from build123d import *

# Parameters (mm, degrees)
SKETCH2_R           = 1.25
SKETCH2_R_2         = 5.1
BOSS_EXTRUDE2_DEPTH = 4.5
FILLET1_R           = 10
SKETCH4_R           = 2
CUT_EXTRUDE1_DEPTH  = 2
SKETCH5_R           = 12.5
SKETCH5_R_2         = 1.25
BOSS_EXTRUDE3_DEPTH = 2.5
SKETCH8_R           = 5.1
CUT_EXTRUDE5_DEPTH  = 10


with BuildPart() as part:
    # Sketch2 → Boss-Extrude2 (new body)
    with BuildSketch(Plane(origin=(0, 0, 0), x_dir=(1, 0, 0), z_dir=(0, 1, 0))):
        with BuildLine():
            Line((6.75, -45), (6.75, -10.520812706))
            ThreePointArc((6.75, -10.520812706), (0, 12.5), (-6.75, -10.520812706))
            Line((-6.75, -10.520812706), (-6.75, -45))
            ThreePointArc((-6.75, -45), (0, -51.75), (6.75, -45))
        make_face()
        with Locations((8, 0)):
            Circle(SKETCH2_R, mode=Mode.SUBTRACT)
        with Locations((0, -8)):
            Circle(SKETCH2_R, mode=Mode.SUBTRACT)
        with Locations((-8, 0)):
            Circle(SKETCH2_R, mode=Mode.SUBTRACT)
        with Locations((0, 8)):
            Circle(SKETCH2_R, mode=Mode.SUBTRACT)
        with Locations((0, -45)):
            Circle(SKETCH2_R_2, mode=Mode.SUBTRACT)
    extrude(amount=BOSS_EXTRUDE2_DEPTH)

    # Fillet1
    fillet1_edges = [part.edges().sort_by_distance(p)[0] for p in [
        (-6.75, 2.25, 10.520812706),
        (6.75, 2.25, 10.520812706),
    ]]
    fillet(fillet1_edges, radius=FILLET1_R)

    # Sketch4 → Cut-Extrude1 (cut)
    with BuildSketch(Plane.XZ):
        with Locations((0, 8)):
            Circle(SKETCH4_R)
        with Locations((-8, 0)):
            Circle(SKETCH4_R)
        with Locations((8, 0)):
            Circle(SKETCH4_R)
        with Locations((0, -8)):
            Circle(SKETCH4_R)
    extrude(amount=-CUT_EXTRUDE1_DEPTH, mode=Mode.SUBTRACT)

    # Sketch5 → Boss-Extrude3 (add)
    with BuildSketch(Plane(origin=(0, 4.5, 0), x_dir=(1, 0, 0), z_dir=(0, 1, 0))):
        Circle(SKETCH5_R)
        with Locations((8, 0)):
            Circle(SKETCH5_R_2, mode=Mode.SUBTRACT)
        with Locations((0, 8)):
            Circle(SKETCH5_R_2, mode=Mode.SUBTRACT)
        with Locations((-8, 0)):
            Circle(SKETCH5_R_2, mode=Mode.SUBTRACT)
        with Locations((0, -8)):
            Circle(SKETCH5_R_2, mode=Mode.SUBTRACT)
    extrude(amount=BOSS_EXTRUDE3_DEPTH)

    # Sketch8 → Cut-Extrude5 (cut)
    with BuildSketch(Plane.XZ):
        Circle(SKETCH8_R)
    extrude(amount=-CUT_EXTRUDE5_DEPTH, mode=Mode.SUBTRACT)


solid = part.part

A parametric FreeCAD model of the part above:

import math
import FreeCAD as App
import Part
import Sketcher
from FreeCAD import Vector


def edges_at(feature, points):
    """Names of the edges that pass closest to the given points."""
    edges = feature.Shape.Edges
    near = lambda p: min(range(len(edges)), key=lambda i: edges[i].distToShape(Part.Vertex(*p))[0])
    return sorted({f"Edge{near(p) + 1}" for p in points})

doc = App.newDocument("Part")
body = doc.addObject("PartDesign::Body", "Body")

# Sketch on XZ plane
sketch1 = body.newObject("Sketcher::SketchObject", "Sketch")
sketch1.AttachmentSupport = (doc.getObject("XZ_Plane"), [""])
sketch1.MapMode = "FlatFace"
sketch1.addGeometry(Part.LineSegment(Vector(6.8, 45, 0), Vector(6.8, 10.5, 0)), False)
sketch1.addGeometry(Part.ArcOfCircle(Part.Circle(Vector(0, 0, 0), Vector(0, 0, 1), 12.5), math.radians(123), math.radians(417)), False)
sketch1.addGeometry(Part.LineSegment(Vector(-6.8, 10.5, 0), Vector(-6.8, 45, 0)), False)
sketch1.addGeometry(Part.ArcOfCircle(Part.Circle(Vector(0, 45, 0), Vector(0, 0, 1), 6.8), math.radians(0), math.radians(180)), False)
sketch1.addGeometry(Part.Circle(Vector(0, 45, 0), Vector(0, 0, 1), 5.1), False)
sketch1.addGeometry(Part.Circle(Vector(-8, 0, 0), Vector(0, 0, 1), 1.2), False)
sketch1.addGeometry(Part.Circle(Vector(0, 8, 0), Vector(0, 0, 1), 1.2), False)
sketch1.addGeometry(Part.Circle(Vector(0, -8, 0), Vector(0, 0, 1), 1.2), False)
sketch1.addGeometry(Part.Circle(Vector(8, 0, 0), Vector(0, 0, 1), 1.2), False)
sketch1.addConstraint(Sketcher.Constraint("Coincident", 0, 2, 1, 2))
sketch1.addConstraint(Sketcher.Constraint("Coincident", 1, 1, 2, 1))
sketch1.addConstraint(Sketcher.Constraint("Tangent", 2, 2, 3, 2))
sketch1.addConstraint(Sketcher.Constraint("Tangent", 3, 1, 0, 1))
sketch1.addConstraint(Sketcher.Constraint("Vertical", 0))
sketch1.addConstraint(Sketcher.Constraint("Vertical", 2))
sketch1.addConstraint(Sketcher.Constraint("Coincident", 1, 3, -1, 1))
sketch1.addConstraint(Sketcher.Constraint("Coincident", 4, 3, 3, 3))
sketch1.addConstraint(Sketcher.Constraint("Equal", 5, 6))
sketch1.addConstraint(Sketcher.Constraint("Equal", 6, 7))
sketch1.addConstraint(Sketcher.Constraint("Equal", 7, 8))
sketch1.addConstraint(Sketcher.Constraint("Symmetric", 6, 3, 7, 3, -1, 1))
sketch1.addConstraint(Sketcher.Constraint("Symmetric", 5, 3, 8, 3, -1, 1))
sketch1.addConstraint(Sketcher.Constraint("PointOnObject", 3, 3, -2))
sketch1.addConstraint(Sketcher.Constraint("PointOnObject", 5, 3, -1))
sketch1.addConstraint(Sketcher.Constraint("PointOnObject", 6, 3, -2))
sketch1.addConstraint(Sketcher.Constraint("Diameter", 4, 10.2))
sketch1.addConstraint(Sketcher.Constraint("Diameter", 5, 2.5))
sketch1.addConstraint(Sketcher.Constraint("Radius", 1, 12.5))
sketch1.addConstraint(Sketcher.Constraint("Radius", 3, 6.75))
sketch1.addConstraint(Sketcher.Constraint("DistanceY", -1, 1, 3, 3, 45.0))
sketch1.addConstraint(Sketcher.Constraint("DistanceX", 5, 3, -1, 1, 8.0))
sketch1.addConstraint(Sketcher.Constraint("DistanceY", -1, 1, 6, 3, 8.0))
pad1 = body.newObject("PartDesign::Pad", "Pad")
pad1.Profile = sketch1
pad1.Length = 4.5
pad1.Reversed = True
doc.recompute()

fillet = body.newObject("PartDesign::Fillet", "Fillet")
fillet.Base = (pad1, edges_at(pad1, [(-6.75, 2.25, 10.521), (6.75, 2.25, 10.521)]))
fillet.Radius = 10

# Sketch on XZ plane
sketch2 = body.newObject("Sketcher::SketchObject", "Sketch001")
sketch2.AttachmentSupport = (doc.getObject("XZ_Plane"), [""])
sketch2.MapMode = "FlatFace"
sketch2.addGeometry(Part.Circle(Vector(0, 8, 0), Vector(0, 0, 1), 2), False)
sketch2.addGeometry(Part.Circle(Vector(-8, 0, 0), Vector(0, 0, 1), 2), False)
sketch2.addGeometry(Part.Circle(Vector(8, 0, 0), Vector(0, 0, 1), 2), False)
sketch2.addGeometry(Part.Circle(Vector(0, -8, 0), Vector(0, 0, 1), 2), False)
sketch2.addConstraint(Sketcher.Constraint("Equal", 0, 1))
sketch2.addConstraint(Sketcher.Constraint("Equal", 1, 2))
sketch2.addConstraint(Sketcher.Constraint("Equal", 2, 3))
sketch2.addConstraint(Sketcher.Constraint("Symmetric", 1, 3, 2, 3, -1, 1))
sketch2.addConstraint(Sketcher.Constraint("Symmetric", 0, 3, 3, 3, -1, 1))
sketch2.addConstraint(Sketcher.Constraint("PointOnObject", 0, 3, -2))
sketch2.addConstraint(Sketcher.Constraint("PointOnObject", 1, 3, -1))
sketch2.addConstraint(Sketcher.Constraint("Diameter", 0, 4.0))
sketch2.addConstraint(Sketcher.Constraint("DistanceY", -1, 1, 0, 3, 8.0))
sketch2.addConstraint(Sketcher.Constraint("DistanceX", 1, 3, -1, 1, 8.0))
pocket1 = body.newObject("PartDesign::Pocket", "Pocket")
pocket1.Profile = sketch2
pocket1.Length = 2

# Sketch on XZ plane
sketch3 = body.newObject("Sketcher::SketchObject", "Sketch002")
sketch3.AttachmentSupport = (doc.getObject("XZ_Plane"), [""])
sketch3.MapMode = "FlatFace"
sketch3.AttachmentOffset = App.Placement(Vector(0, 0, -4.5), App.Rotation())
sketch3.addGeometry(Part.Circle(Vector(0, 0, 0), Vector(0, 0, 1), 12.5), False)
sketch3.addGeometry(Part.Circle(Vector(0, 8, 0), Vector(0, 0, 1), 1.2), False)
sketch3.addGeometry(Part.Circle(Vector(-8, 0, 0), Vector(0, 0, 1), 1.2), False)
sketch3.addGeometry(Part.Circle(Vector(8, 0, 0), Vector(0, 0, 1), 1.2), False)
sketch3.addGeometry(Part.Circle(Vector(0, -8, 0), Vector(0, 0, 1), 1.2), False)
sketch3.addConstraint(Sketcher.Constraint("Coincident", 0, 3, -1, 1))
sketch3.addConstraint(Sketcher.Constraint("Equal", 1, 2))
sketch3.addConstraint(Sketcher.Constraint("Equal", 2, 3))
sketch3.addConstraint(Sketcher.Constraint("Equal", 3, 4))
sketch3.addConstraint(Sketcher.Constraint("Symmetric", 2, 3, 3, 3, -1, 1))
sketch3.addConstraint(Sketcher.Constraint("Symmetric", 1, 3, 4, 3, -1, 1))
sketch3.addConstraint(Sketcher.Constraint("PointOnObject", 1, 3, -2))
sketch3.addConstraint(Sketcher.Constraint("PointOnObject", 2, 3, -1))
sketch3.addConstraint(Sketcher.Constraint("Diameter", 0, 25.0))
sketch3.addConstraint(Sketcher.Constraint("Diameter", 1, 2.5))
sketch3.addConstraint(Sketcher.Constraint("DistanceY", -1, 1, 1, 3, 8.0))
sketch3.addConstraint(Sketcher.Constraint("DistanceX", 2, 3, -1, 1, 8.0))
pad2 = body.newObject("PartDesign::Pad", "Pad001")
pad2.Profile = sketch3
pad2.Length = 2.5
pad2.Reversed = True

# Sketch on XZ plane
sketch4 = body.newObject("Sketcher::SketchObject", "Sketch003")
sketch4.AttachmentSupport = (doc.getObject("XZ_Plane"), [""])
sketch4.MapMode = "FlatFace"
sketch4.addGeometry(Part.Circle(Vector(0, 0, 0), Vector(0, 0, 1), 5), False)
sketch4.addConstraint(Sketcher.Constraint("Coincident", 0, 3, -1, 1))
sketch4.addConstraint(Sketcher.Constraint("Diameter", 0, 10.2))
pocket2 = body.newObject("PartDesign::Pocket", "Pocket001")
pocket2.Profile = sketch4
pocket2.Length = 10

doc.recompute()
